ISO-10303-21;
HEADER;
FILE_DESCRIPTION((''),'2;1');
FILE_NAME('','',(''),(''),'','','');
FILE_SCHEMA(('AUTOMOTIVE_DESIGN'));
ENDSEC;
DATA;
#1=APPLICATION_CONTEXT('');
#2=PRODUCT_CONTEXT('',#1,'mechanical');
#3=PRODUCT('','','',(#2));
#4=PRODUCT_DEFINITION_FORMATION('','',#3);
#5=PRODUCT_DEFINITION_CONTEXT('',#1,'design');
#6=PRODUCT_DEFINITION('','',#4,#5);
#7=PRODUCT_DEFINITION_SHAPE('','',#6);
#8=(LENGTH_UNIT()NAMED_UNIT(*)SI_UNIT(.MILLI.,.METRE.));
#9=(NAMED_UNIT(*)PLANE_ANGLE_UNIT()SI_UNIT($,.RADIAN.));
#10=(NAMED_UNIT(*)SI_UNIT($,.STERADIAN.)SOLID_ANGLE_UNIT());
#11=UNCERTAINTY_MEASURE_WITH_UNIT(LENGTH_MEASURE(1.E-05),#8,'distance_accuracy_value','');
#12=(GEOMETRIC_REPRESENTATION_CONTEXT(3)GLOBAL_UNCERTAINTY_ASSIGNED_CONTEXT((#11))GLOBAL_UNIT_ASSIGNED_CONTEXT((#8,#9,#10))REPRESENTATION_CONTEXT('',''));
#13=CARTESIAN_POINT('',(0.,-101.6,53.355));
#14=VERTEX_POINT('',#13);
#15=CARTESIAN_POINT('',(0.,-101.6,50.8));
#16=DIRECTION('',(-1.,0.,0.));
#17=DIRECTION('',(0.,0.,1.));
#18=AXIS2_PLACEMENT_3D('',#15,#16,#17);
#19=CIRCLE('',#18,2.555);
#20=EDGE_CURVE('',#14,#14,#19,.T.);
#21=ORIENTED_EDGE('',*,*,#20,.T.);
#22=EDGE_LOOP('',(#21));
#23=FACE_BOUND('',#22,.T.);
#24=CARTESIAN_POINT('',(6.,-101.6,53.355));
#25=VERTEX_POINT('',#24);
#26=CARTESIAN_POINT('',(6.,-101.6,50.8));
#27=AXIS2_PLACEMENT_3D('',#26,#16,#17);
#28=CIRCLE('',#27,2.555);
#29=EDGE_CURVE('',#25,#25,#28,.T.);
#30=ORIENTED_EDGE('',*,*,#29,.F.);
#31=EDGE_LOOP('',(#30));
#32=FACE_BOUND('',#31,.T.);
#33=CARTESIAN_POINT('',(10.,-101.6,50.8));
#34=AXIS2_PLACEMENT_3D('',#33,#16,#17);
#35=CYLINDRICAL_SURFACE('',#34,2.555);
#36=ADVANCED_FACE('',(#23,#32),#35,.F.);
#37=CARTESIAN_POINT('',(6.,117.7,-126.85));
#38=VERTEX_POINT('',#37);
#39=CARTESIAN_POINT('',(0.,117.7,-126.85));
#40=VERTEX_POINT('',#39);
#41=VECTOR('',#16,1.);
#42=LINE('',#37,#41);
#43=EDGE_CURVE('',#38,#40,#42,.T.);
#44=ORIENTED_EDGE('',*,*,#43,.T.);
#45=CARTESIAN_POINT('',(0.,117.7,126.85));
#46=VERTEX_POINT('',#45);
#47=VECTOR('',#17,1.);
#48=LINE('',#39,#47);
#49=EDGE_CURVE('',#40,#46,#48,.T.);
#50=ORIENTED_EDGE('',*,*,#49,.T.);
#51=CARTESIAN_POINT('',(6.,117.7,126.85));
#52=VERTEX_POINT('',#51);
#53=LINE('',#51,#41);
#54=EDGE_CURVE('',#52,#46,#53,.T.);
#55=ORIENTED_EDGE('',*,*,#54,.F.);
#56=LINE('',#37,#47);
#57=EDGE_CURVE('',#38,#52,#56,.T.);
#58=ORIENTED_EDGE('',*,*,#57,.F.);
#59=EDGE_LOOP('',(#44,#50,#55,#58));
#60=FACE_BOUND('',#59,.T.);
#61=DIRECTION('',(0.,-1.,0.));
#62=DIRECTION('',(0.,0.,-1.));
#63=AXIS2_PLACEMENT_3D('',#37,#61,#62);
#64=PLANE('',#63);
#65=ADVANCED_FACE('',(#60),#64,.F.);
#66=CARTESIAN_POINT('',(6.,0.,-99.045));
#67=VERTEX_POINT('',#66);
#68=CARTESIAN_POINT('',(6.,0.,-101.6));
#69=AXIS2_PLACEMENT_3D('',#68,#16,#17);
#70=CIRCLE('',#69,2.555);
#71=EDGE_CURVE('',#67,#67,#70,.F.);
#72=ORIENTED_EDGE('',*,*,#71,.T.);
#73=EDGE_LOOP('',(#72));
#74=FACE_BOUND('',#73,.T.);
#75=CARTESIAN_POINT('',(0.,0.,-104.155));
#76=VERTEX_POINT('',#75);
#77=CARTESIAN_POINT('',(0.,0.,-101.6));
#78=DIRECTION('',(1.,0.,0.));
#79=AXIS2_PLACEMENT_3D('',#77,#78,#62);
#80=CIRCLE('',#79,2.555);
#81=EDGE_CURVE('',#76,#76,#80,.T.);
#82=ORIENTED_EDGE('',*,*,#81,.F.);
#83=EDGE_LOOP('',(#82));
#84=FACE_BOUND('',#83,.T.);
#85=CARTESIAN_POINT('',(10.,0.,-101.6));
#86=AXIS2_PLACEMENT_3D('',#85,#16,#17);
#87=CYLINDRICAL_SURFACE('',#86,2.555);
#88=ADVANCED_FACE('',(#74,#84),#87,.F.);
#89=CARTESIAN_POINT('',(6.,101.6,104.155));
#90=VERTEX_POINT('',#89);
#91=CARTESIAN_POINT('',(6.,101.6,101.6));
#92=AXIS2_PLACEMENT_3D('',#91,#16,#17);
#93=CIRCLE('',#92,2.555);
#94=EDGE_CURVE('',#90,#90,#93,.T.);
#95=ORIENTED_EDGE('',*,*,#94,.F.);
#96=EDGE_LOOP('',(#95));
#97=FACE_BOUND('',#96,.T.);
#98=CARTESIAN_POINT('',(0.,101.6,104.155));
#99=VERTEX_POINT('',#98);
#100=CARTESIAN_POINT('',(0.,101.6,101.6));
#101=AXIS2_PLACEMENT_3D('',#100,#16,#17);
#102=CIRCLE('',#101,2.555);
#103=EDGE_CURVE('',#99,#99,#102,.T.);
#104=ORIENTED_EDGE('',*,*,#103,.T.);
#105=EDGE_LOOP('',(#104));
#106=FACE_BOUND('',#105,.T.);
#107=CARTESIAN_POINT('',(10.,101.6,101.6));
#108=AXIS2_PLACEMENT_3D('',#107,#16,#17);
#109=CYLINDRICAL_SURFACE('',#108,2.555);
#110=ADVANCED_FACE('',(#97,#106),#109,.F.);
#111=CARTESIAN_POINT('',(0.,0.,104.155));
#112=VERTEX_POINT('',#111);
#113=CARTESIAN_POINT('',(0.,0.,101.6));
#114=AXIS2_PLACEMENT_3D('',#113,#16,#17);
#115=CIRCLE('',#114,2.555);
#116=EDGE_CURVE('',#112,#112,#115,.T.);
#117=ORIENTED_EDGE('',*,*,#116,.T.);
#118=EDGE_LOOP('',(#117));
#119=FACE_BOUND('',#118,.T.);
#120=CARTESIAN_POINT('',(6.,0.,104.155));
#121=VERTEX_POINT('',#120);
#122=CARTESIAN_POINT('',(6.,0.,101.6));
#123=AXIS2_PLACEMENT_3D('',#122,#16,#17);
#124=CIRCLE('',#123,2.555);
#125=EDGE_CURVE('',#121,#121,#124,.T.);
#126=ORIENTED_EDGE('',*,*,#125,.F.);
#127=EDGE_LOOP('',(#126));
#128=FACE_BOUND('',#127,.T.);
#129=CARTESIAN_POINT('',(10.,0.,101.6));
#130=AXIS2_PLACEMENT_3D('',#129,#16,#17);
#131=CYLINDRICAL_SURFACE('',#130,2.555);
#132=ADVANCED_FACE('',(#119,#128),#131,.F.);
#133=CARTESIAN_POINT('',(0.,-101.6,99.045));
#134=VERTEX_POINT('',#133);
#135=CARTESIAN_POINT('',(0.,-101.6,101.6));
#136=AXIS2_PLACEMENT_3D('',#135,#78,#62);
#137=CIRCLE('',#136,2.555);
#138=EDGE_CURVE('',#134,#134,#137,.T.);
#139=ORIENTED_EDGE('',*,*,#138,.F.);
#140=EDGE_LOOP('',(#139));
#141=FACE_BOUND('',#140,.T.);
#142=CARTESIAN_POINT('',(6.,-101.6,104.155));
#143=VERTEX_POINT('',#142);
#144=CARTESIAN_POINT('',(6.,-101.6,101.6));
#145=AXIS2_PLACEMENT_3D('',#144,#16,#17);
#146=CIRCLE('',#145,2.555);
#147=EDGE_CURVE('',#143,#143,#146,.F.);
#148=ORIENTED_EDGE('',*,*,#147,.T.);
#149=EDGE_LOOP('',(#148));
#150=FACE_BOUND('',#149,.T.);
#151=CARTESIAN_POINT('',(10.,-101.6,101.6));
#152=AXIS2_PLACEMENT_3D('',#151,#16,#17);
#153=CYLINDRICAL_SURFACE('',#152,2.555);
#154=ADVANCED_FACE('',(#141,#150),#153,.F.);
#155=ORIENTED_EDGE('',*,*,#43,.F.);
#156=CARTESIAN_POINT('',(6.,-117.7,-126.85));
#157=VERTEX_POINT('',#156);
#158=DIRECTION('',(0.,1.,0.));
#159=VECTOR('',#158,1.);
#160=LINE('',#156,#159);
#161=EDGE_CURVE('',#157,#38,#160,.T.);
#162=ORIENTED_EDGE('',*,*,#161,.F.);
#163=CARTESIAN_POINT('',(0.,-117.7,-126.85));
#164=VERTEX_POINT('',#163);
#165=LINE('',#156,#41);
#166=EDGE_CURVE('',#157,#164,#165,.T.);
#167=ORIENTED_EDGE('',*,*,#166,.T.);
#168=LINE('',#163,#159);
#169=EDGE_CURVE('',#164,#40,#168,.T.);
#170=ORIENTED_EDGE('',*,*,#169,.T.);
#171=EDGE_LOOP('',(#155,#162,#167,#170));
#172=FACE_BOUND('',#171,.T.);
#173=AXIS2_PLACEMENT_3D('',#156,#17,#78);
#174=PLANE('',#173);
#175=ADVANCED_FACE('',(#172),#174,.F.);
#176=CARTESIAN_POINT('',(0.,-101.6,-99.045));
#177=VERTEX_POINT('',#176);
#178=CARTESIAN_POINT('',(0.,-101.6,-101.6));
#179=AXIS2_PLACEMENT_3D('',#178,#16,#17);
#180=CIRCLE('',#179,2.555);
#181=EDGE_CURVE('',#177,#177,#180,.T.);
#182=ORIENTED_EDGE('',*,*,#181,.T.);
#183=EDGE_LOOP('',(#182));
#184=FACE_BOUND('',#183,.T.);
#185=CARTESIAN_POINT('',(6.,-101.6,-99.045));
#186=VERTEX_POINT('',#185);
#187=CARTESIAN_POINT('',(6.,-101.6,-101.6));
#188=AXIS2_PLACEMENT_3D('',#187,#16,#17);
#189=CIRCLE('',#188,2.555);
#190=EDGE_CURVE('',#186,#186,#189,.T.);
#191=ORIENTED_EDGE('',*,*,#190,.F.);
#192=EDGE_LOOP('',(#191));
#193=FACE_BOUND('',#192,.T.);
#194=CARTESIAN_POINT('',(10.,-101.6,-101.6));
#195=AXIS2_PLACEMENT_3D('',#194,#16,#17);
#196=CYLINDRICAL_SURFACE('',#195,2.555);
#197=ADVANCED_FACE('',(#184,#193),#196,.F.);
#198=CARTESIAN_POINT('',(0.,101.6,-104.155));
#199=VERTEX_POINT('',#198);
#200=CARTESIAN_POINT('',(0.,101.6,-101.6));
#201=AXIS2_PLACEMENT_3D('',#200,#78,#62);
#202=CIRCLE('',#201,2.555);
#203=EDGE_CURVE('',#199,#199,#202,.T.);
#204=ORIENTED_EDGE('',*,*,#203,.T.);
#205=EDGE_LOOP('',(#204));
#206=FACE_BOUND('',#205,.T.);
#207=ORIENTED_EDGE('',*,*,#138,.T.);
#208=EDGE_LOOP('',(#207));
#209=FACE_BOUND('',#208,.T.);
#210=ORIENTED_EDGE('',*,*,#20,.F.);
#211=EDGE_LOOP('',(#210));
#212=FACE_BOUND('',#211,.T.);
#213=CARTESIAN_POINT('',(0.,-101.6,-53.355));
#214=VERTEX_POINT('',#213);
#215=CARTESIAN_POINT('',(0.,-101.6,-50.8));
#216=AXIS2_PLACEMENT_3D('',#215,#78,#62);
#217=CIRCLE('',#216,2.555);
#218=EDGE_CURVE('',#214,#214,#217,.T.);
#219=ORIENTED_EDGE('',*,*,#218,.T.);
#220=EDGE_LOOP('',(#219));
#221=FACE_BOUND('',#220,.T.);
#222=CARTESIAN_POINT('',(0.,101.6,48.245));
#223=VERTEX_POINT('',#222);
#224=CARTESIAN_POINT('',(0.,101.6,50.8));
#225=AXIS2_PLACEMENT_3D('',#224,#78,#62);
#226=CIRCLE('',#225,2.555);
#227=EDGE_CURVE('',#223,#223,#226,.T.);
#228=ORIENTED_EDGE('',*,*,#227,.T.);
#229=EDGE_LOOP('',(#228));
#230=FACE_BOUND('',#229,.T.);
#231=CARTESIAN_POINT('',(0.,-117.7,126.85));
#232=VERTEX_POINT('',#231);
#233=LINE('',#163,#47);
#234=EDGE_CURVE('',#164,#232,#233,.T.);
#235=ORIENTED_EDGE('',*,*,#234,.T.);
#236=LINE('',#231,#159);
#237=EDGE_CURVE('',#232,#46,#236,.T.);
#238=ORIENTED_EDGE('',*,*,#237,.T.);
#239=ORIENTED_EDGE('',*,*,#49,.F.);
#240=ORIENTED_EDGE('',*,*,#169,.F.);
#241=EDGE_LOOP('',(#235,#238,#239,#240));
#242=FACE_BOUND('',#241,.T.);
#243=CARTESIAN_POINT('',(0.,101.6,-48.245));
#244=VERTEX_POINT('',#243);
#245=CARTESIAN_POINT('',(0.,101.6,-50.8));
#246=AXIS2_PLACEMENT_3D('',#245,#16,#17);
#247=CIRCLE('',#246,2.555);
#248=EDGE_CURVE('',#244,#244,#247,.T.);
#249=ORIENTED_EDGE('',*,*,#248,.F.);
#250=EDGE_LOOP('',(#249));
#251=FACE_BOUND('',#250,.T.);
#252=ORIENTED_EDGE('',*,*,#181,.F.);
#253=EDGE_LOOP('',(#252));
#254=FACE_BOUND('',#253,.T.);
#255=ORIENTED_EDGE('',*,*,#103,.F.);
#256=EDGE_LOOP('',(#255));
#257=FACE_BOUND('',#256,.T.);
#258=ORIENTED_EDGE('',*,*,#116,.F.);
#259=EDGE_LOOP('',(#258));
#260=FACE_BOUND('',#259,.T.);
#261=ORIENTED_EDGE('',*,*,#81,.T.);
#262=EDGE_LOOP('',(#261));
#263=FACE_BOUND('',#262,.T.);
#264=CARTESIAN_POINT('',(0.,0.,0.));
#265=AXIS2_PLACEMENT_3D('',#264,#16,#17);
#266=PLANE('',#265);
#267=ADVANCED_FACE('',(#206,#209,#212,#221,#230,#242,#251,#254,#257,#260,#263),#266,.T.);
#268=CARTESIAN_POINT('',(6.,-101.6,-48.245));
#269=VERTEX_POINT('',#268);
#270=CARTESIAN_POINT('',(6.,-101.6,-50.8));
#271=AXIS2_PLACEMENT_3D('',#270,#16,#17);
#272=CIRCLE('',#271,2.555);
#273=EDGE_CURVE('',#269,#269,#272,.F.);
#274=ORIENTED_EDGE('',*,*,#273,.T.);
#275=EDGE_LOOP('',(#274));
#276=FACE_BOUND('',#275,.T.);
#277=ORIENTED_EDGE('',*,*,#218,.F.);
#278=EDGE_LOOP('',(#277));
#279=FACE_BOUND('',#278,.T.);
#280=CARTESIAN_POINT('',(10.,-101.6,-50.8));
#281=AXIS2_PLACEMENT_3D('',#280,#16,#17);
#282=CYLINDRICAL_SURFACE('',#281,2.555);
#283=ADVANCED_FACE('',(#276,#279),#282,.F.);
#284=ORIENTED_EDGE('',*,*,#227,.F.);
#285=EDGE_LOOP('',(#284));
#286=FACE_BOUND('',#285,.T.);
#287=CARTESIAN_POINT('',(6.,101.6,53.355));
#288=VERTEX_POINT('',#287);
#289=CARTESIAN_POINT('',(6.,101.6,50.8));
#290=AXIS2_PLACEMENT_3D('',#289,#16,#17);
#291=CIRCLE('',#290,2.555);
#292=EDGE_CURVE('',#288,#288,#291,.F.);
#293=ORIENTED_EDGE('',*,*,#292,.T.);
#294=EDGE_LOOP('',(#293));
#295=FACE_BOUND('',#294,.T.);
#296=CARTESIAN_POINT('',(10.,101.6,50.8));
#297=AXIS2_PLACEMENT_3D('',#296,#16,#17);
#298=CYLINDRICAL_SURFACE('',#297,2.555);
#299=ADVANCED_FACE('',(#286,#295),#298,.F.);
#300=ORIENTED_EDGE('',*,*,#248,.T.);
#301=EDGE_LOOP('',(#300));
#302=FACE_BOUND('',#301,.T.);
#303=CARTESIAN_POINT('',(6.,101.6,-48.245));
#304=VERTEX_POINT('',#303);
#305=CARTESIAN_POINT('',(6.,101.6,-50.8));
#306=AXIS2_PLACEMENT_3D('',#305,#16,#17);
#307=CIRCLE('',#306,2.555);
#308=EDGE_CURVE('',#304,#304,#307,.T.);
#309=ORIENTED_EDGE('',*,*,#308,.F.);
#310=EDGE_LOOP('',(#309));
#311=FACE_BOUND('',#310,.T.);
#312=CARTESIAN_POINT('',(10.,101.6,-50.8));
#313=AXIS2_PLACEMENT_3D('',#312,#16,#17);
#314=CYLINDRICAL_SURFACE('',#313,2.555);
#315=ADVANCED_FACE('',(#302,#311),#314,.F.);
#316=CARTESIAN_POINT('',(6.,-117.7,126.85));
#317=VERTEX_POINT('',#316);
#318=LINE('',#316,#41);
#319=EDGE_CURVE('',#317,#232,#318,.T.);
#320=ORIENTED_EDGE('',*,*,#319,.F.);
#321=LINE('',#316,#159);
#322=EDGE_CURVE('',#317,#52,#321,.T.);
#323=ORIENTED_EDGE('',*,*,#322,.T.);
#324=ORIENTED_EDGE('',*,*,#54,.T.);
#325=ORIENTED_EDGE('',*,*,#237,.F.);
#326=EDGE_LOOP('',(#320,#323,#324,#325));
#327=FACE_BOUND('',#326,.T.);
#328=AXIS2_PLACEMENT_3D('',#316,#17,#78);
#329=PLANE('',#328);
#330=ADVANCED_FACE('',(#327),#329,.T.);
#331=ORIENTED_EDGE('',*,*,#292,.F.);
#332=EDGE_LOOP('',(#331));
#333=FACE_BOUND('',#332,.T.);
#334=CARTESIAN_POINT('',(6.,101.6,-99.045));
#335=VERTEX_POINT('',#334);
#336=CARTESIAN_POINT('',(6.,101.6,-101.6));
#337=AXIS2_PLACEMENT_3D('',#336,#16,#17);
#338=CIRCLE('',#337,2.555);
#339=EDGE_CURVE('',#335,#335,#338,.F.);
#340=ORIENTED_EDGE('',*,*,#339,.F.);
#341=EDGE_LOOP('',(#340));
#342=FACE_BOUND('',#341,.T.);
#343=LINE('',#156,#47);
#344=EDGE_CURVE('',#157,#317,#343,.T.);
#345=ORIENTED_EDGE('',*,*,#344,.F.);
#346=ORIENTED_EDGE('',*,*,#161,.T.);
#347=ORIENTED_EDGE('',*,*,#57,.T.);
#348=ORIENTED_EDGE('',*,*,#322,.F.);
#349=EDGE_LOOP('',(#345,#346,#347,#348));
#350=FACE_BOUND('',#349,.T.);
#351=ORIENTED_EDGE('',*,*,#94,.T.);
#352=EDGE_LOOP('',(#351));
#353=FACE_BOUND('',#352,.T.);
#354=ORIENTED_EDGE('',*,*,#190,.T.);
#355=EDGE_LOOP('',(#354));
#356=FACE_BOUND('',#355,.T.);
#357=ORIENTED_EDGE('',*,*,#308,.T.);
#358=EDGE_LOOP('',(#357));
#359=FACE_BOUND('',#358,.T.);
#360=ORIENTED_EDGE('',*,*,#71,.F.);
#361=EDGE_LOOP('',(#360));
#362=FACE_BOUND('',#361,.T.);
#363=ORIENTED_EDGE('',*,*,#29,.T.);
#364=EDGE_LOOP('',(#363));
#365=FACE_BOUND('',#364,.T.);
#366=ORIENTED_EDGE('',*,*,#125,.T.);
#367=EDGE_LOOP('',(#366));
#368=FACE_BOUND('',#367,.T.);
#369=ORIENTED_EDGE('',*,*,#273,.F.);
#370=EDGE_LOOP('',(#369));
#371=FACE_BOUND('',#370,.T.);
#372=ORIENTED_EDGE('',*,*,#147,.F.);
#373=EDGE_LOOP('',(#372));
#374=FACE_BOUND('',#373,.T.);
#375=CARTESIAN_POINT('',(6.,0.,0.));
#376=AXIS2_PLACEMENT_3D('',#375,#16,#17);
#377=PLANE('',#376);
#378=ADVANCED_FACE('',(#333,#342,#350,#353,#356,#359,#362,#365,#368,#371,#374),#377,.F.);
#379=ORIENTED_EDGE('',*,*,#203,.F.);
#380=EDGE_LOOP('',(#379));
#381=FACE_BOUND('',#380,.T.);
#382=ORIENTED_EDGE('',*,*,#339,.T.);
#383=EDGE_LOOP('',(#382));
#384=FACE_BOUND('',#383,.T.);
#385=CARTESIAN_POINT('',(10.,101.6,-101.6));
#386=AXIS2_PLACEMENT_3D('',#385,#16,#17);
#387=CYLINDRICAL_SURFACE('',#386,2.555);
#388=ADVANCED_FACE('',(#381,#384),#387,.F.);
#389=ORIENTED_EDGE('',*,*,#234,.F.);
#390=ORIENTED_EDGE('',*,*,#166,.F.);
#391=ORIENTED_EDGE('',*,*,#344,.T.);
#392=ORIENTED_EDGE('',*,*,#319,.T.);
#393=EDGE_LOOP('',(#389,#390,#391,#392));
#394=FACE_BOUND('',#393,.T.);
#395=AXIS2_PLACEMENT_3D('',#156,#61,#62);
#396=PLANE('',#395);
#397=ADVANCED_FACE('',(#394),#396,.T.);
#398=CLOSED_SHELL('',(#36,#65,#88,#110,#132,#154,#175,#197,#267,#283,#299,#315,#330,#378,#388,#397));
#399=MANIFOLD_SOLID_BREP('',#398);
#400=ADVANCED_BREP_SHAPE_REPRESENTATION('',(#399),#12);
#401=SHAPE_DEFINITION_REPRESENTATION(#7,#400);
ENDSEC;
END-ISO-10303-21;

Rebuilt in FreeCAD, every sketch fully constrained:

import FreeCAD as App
import Part
import Sketcher
from FreeCAD import Vector

doc = App.newDocument("Part")
body = doc.addObject("PartDesign::Body", "Body")

# Sketch on YZ plane
sketch1 = body.newObject("Sketcher::SketchObject", "Sketch")
sketch1.AttachmentSupport = (doc.getObject("YZ_Plane"), [""])
sketch1.MapMode = "FlatFace"
sketch1.addGeometry(Part.LineSegment(Vector(-117.7, 126.85, 0), Vector(-117.7, -126.85, 0)), False)
sketch1.addGeometry(Part.LineSegment(Vector(-117.7, -126.85, 0), Vector(117.7, -126.85, 0)), False)
sketch1.addGeometry(Part.LineSegment(Vector(117.7, -126.85, 0), Vector(117.7, 126.85, 0)), False)
sketch1.addGeometry(Part.LineSegment(Vector(117.7, 126.85, 0), Vector(-117.7, 126.85, 0)), False)
sketch1.addConstraint(Sketcher.Constraint("Coincident", 0, 2, 1, 1))
sketch1.addConstraint(Sketcher.Constraint("Coincident", 1, 2, 2, 1))
sketch1.addConstraint(Sketcher.Constraint("Coincident", 2, 2, 3, 1))
sketch1.addConstraint(Sketcher.Constraint("Coincident", 3, 2, 0, 1))
sketch1.addConstraint(Sketcher.Constraint("Vertical", 0))
sketch1.addConstraint(Sketcher.Constraint("Horizontal", 1))
sketch1.addConstraint(Sketcher.Constraint("Vertical", 2))
sketch1.addConstraint(Sketcher.Constraint("Horizontal", 3))
sketch1.addConstraint(Sketcher.Constraint("Symmetric", 0, 2, 2, 2, -1, 1))
sketch1.addConstraint(Sketcher.Constraint("DistanceX", 1, 1, 1, 2, 235.4))
sketch1.addConstraint(Sketcher.Constraint("DistanceY", 0, 2, 0, 1, 253.7))
pad1 = body.newObject("PartDesign::Pad", "Pad")
pad1.Profile = sketch1
pad1.Length = 6

# Sketch on YZ plane
sketch2 = body.newObject("Sketcher::SketchObject", "Sketch001")
sketch2.AttachmentSupport = (doc.getObject("YZ_Plane"), [""])
sketch2.MapMode = "FlatFace"
sketch2.addGeometry(Part.Circle(Vector(-101.6, 101.6, 0), Vector(0, 0, 1), 2.555), False)
sketch2.addGeometry(Part.Circle(Vector(101.6, 101.6, 0), Vector(0, 0, 1), 2.555), False)
sketch2.addGeometry(Part.Circle(Vector(-101.6, -101.6, 0), Vector(0, 0, 1), 2.555), False)
sketch2.addGeometry(Part.Circle(Vector(101.6, -101.6, 0), Vector(0, 0, 1), 2.555), False)
sketch2.addGeometry(Part.Circle(Vector(0, -101.6, 0), Vector(0, 0, 1), 2.555), False)
sketch2.addGeometry(Part.Circle(Vector(0, 101.6, 0), Vector(0, 0, 1), 2.555), False)
sketch2.addGeometry(Part.Circle(Vector(-101.6, -50.8, 0), Vector(0, 0, 1), 2.555), False)
sketch2.addGeometry(Part.Circle(Vector(101.6, -50.8, 0), Vector(0, 0, 1), 2.555), False)
sketch2.addGeometry(Part.Circle(Vector(101.6, 50.8, 0), Vector(0, 0, 1), 2.555), False)
sketch2.addGeometry(Part.Circle(Vector(-101.6, 50.8, 0), Vector(0, 0, 1), 2.555), False)
sketch2.addConstraint(Sketcher.Constraint("Equal", 0, 1))
sketch2.addConstraint(Sketcher.Constraint("Equal", 1, 2))
sketch2.addConstraint(Sketcher.Constraint("Equal", 2, 3))
sketch2.addConstraint(Sketcher.Constraint("Equal", 3, 4))
sketch2.addConstraint(Sketcher.Constraint("Equal", 4, 5))
sketch2.addConstraint(Sketcher.Constraint("Equal", 5, 6))
sketch2.addConstraint(Sketcher.Constraint("Equal", 6, 7))
sketch2.addConstraint(Sketcher.Constraint("Equal", 7, 8))
sketch2.addConstraint(Sketcher.Constraint("Equal", 8, 9))
sketch2.addConstraint(Sketcher.Constraint("Symmetric", 1, 3, 2, 3, -1, 1))
sketch2.addConstraint(Sketcher.Constraint("Symmetric", 0, 3, 3, 3, -1, 1))
sketch2.addConstraint(Sketcher.Constraint("Symmetric", 4, 3, 5, 3, -1, 1))
sketch2.addConstraint(Sketcher.Constraint("Symmetric", 6, 3, 8, 3, -1, 1))
sketch2.addConstraint(Sketcher.Constraint("Symmetric", 7, 3, 9, 3, -1, 1))
sketch2.addConstraint(Sketcher.Constraint("Symmetric", 0, 3, 1, 3, -2))
sketch2.addConstraint(Sketcher.Constraint("Symmetric", 6, 3, 7, 3, -2))
sketch2.addConstraint(Sketcher.Constraint("PointOnObject", 4, 3, -2))
sketch2.addConstraint(Sketcher.Constraint("Horizontal", 3, 3, 4, 3))
sketch2.addConstraint(Sketcher.Constraint("Vertical", 2, 3, 6, 3))
sketch2.addConstraint(Sketcher.Constraint("Diameter", 0, 5.11))
sketch2.addConstraint(Sketcher.Constraint("DistanceX", 0, 3, -1, 1, 101.6))
sketch2.addConstraint(Sketcher.Constraint("DistanceY", -1, 1, 0, 3, 101.6))
sketch2.addConstraint(Sketcher.Constraint("DistanceY", 6, 3, -1, 1, 50.8))
pocket1 = body.newObject("PartDesign::Pocket", "Pocket")
pocket1.Profile = sketch2
pocket1.Length = 10
pocket1.Reversed = True

doc.recompute()
